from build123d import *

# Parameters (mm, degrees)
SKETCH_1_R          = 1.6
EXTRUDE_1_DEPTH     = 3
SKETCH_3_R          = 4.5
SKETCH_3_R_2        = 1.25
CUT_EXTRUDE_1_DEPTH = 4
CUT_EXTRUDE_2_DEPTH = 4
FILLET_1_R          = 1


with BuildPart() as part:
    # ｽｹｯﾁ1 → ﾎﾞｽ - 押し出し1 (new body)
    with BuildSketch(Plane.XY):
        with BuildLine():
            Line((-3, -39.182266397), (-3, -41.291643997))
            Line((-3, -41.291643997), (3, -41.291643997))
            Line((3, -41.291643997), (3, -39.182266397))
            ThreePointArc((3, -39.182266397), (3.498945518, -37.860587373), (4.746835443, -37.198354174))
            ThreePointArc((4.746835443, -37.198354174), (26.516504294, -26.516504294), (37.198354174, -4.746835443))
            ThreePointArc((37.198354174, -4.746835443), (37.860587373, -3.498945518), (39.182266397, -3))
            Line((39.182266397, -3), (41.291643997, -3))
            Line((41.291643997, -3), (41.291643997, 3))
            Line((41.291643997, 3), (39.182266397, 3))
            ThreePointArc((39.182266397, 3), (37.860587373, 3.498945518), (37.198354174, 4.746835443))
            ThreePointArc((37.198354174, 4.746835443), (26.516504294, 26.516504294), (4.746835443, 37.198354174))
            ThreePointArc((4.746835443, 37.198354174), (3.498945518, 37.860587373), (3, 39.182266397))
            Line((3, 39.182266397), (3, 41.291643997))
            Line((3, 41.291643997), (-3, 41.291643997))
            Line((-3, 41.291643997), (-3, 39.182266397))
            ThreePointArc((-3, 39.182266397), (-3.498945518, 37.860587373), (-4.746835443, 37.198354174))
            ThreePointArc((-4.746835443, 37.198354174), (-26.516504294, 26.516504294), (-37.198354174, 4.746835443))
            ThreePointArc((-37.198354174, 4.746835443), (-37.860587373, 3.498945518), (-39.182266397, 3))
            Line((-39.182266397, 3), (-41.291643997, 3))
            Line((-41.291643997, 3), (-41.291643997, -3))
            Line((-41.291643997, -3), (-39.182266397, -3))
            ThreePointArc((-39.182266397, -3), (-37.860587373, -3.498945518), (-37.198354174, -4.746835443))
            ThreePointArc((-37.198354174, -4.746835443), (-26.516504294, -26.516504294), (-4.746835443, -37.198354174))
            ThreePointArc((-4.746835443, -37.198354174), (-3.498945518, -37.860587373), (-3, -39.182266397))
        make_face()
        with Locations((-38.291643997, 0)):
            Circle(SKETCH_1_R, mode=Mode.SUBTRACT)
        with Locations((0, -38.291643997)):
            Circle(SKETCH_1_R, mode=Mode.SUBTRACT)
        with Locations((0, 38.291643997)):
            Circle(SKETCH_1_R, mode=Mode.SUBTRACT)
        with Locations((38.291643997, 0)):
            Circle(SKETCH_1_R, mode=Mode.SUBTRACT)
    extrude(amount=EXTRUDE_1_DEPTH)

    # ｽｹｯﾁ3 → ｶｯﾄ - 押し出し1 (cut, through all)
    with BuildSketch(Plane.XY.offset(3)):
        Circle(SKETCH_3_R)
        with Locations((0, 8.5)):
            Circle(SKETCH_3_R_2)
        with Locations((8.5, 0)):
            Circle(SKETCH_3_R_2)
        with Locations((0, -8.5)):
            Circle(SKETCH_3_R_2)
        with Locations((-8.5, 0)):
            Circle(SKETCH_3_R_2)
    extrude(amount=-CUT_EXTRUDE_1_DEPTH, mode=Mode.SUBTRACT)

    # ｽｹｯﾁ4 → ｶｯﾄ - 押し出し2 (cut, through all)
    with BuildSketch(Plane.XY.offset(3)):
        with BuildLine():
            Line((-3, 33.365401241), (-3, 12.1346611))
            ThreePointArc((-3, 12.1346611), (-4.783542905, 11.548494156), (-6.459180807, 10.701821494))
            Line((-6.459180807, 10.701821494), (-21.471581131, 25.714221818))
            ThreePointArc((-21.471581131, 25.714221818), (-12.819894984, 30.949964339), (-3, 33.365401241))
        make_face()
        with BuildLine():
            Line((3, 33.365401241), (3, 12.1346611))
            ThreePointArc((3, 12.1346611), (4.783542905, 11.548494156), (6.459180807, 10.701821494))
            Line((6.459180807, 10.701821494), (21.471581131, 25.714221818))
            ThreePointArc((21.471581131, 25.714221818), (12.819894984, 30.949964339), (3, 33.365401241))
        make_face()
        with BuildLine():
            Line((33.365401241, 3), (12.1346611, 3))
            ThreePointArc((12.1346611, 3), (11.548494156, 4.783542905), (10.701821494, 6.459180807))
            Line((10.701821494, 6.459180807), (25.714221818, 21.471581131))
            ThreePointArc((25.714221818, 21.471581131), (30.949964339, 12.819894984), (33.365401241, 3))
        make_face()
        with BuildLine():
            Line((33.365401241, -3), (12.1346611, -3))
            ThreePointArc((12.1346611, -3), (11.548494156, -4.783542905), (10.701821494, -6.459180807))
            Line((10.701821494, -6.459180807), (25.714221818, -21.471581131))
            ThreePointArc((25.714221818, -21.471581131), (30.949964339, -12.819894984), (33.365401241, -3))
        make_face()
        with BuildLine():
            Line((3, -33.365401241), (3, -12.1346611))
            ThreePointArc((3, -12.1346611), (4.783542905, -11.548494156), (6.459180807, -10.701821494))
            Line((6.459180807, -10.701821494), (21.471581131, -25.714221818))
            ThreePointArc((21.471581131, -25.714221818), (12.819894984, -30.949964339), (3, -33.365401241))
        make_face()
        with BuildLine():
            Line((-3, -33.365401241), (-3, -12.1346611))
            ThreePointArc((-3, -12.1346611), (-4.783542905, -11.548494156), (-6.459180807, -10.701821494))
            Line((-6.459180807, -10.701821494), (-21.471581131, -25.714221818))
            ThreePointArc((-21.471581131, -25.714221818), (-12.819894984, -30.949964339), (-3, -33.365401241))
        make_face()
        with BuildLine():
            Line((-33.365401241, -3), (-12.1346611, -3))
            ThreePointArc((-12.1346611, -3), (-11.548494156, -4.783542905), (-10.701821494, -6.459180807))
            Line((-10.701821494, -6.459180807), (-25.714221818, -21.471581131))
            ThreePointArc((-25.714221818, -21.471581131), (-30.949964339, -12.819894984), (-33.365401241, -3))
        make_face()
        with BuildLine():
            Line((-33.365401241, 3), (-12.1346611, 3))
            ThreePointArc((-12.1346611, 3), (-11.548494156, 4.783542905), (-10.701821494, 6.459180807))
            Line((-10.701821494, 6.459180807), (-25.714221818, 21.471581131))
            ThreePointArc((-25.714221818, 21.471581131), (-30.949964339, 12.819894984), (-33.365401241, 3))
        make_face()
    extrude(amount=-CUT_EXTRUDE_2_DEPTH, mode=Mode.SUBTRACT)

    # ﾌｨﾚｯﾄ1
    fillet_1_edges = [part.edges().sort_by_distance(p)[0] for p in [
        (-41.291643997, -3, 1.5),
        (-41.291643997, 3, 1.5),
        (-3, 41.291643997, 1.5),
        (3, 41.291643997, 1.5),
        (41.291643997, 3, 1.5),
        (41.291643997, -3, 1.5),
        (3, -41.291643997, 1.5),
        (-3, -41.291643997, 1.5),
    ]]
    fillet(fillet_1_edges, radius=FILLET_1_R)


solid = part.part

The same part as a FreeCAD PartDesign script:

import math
import FreeCAD as App
import Part
import Sketcher

V = App.Vector
Q = App.Units.Quantity


def edges_at(feature, points):
    """Names of the edges that pass closest to the given points."""
    edges = feature.Shape.Edges
    near = lambda p: min(range(len(edges)), key=lambda i: edges[i].distToShape(Part.Vertex(*p))[0])
    return sorted({f"Edge{near(p) + 1}" for p in points})

doc = App.newDocument("Part")
body = doc.addObject("PartDesign::Body", "Body")

# Sketch on XY plane
sketch1 = doc.addObject("Sketcher::SketchObject", "Sketch")
body.addObject(sketch1)
sketch1.AttachmentSupport = (doc.XY_Plane, [""])
sketch1.MapMode = "FlatFace"
sketch1.addGeometry([
    Part.LineSegment(V(-3, -39.182266, 0), V(-3, -41.291644, 0)),  # 0
    Part.LineSegment(V(-3, -41.291644, 0), V(3, -41.291644, 0)),  # 1
    Part.LineSegment(V(3, -41.291644, 0), V(3, -39.182266, 0)),  # 2
    Part.ArcOfCircle(Part.Circle(V(5, -39.182266, 0), V(0, 0, 1), 2), math.radians(97.27214), math.radians(180)),  # 3
    Part.ArcOfCircle(Part.Circle(V(0, 0, 0), V(0, 0, 1), 37.5), math.radians(-82.72786), math.radians(-7.27214)),  # 4
    Part.ArcOfCircle(Part.Circle(V(39.182266, -5, 0), V(0, 0, 1), 2), math.radians(90), math.radians(172.72786)),  # 5
    Part.LineSegment(V(39.182266, -3, 0), V(41.291644, -3, 0)),  # 6
    Part.LineSegment(V(41.291644, -3, 0), V(41.291644, 3, 0)),  # 7
    Part.LineSegment(V(41.291644, 3, 0), V(39.182266, 3, 0)),  # 8
    Part.ArcOfCircle(Part.Circle(V(39.182266, 5, 0), V(0, 0, 1), 2), math.radians(-172.72786), math.radians(-90)),  # 9
    Part.ArcOfCircle(Part.Circle(V(0, 0, 0), V(0, 0, 1), 37.5), math.radians(7.27214), math.radians(82.72786)),  # 10
    Part.ArcOfCircle(Part.Circle(V(5, 39.182266, 0), V(0, 0, 1), 2), math.radians(180), math.radians(262.72786)),  # 11
    Part.LineSegment(V(3, 39.182266, 0), V(3, 41.291644, 0)),  # 12
    Part.LineSegment(V(3, 41.291644, 0), V(-3, 41.291644, 0)),  # 13
    Part.LineSegment(V(-3, 41.291644, 0), V(-3, 39.182266, 0)),  # 14
    Part.ArcOfCircle(Part.Circle(V(-5, 39.182266, 0), V(0, 0, 1), 2), math.radians(-82.72786), math.radians(0)),  # 15
    Part.ArcOfCircle(Part.Circle(V(0, 0, 0), V(0, 0, 1), 37.5), math.radians(97.27214), math.radians(172.72786)),  # 16
    Part.ArcOfCircle(Part.Circle(V(-39.182266, 5, 0), V(0, 0, 1), 2), math.radians(-90), math.radians(-7.27214)),  # 17
    Part.LineSegment(V(-39.182266, 3, 0), V(-41.291644, 3, 0)),  # 18
    Part.LineSegment(V(-41.291644, 3, 0), V(-41.291644, -3, 0)),  # 19
    Part.LineSegment(V(-41.291644, -3, 0), V(-39.182266, -3, 0)),  # 20
    Part.ArcOfCircle(Part.Circle(V(-39.182266, -5, 0), V(0, 0, 1), 2), math.radians(7.27214), math.radians(90)),  # 21
    Part.ArcOfCircle(Part.Circle(V(0, 0, 0), V(0, 0, 1), 37.5), math.radians(-172.72786), math.radians(-97.27214)),  # 22
    Part.ArcOfCircle(Part.Circle(V(-5, -39.182266, 0), V(0, 0, 1), 2), math.radians(0), math.radians(82.72786)),  # 23
    Part.Circle(V(0, -38.291644, 0), V(0, 0, 1), 1.6),  # 24
    Part.Circle(V(-38.291644, 0, 0), V(0, 0, 1), 1.6),  # 25
    Part.Circle(V(38.291644, 0, 0), V(0, 0, 1), 1.6),  # 26
    Part.Circle(V(0, 38.291644, 0), V(0, 0, 1), 1.6),  # 27
], False)
sketch1.addConstraint([
    Sketcher.Constraint("Coincident", 0, 2, 1, 1),
    Sketcher.Constraint("Coincident", 1, 2, 2, 1),
    Sketcher.Constraint("Tangent", 2, 2, 3, 2),
    Sketcher.Constraint("Tangent", 3, 1, 4, 1),
    Sketcher.Constraint("Tangent", 4, 2, 5, 2),
    Sketcher.Constraint("Tangent", 5, 1, 6, 1),
    Sketcher.Constraint("Coincident", 6, 2, 7, 1),
    Sketcher.Constraint("Coincident", 7, 2, 8, 1),
    Sketcher.Constraint("Tangent", 8, 2, 9, 2),
    Sketcher.Constraint("Tangent", 9, 1, 10, 1),
    Sketcher.Constraint("Tangent", 10, 2, 11, 2),
    Sketcher.Constraint("Tangent", 11, 1, 12, 1),
    Sketcher.Constraint("Coincident", 12, 2, 13, 1),
    Sketcher.Constraint("Coincident", 13, 2, 14, 1),
    Sketcher.Constraint("Tangent", 14, 2, 15, 2),
    Sketcher.Constraint("Tangent", 15, 1, 16, 1),
    Sketcher.Constraint("Tangent", 16, 2, 17, 2),
    Sketcher.Constraint("Tangent", 17, 1, 18, 1),
    Sketcher.Constraint("Coincident", 18, 2, 19, 1),
    Sketcher.Constraint("Coincident", 19, 2, 20, 1),
    Sketcher.Constraint("Tangent", 20, 2, 21, 2),
    Sketcher.Constraint("Tangent", 21, 1, 22, 1),
    Sketcher.Constraint("Tangent", 22, 2, 23, 2),
    Sketcher.Constraint("Tangent", 23, 1, 0, 1),
    Sketcher.Constraint("Vertical", 0),
    Sketcher.Constraint("Horizontal", 1),
    Sketcher.Constraint("Vertical", 2),
    Sketcher.Constraint("Horizontal", 6),
    Sketcher.Constraint("Vertical", 7),
    Sketcher.Constraint("Horizontal", 8),
    Sketcher.Constraint("Vertical", 12),
    Sketcher.Constraint("Horizontal", 13),
    Sketcher.Constraint("Vertical", 14),
    Sketcher.Constraint("Horizontal", 18),
    Sketcher.Constraint("Vertical", 19),
    Sketcher.Constraint("Horizontal", 20),
    Sketcher.Constraint("Coincident", 4, 3, -1, 1),
    Sketcher.Constraint("Coincident", 10, 3, -1, 1),
    Sketcher.Constraint("Coincident", 16, 3, -1, 1),
    Sketcher.Constraint("Coincident", 22, 3, -1, 1),
    Sketcher.Constraint("Equal", 3, 5),
    Sketcher.Constraint("Equal", 5, 9),
    Sketcher.Constraint("Equal", 4, 10),
    Sketcher.Constraint("Equal", 9, 11),
    Sketcher.Constraint("Equal", 11, 15),
    Sketcher.Constraint("Equal", 10, 16),
    Sketcher.Constraint("Equal", 15, 17),
    Sketcher.Constraint("Equal", 17, 21),
    Sketcher.Constraint("Equal", 16, 22),
    Sketcher.Constraint("Equal", 21, 23),
    Sketcher.Constraint("Equal", 24, 25),
    Sketcher.Constraint("Equal", 25, 26),
    Sketcher.Constraint("Equal", 26, 27),
    Sketcher.Constraint("Symmetric", 25, 3, 26, 3, -1, 1),
    Sketcher.Constraint("Symmetric", 24, 3, 27, 3, -1, 1),
    Sketcher.Constraint("Symmetric", 0, 2, 12, 2, -1, 1),
    Sketcher.Constraint("Symmetric", 6, 2, 18, 2, -1, 1),
    Sketcher.Constraint("PointOnObject", 24, 3, -2),
    Sketcher.Constraint("PointOnObject", 25, 3, -1),
    Sketcher.Constraint("Horizontal", 11, 3, 15, 3),
    Sketcher.Constraint("Horizontal", 9, 3, 17, 3),
    Sketcher.Constraint("Horizontal", 5, 3, 21, 3),
    Sketcher.Constraint("Horizontal", 3, 3, 23, 3),
    Sketcher.Constraint("Equal", 20, 0),
    Sketcher.Constraint("Equal", 13, 7),
    Sketcher.Constraint("Radius", 3, Q("2 mm")),
    Sketcher.Constraint("Diameter", 24, Q("3.2 mm")),
    Sketcher.Constraint("Radius", 4, Q("37.5 mm")),
    Sketcher.Constraint("DistanceX", 1, 1, 1, 2, Q("6 mm")),
    Sketcher.Constraint("DistanceY", 0, 2, 24, 3, Q("3 mm")),
    Sketcher.Constraint("DistanceX", 26, 3, 6, 2, Q("3 mm")),
    Sketcher.Constraint("DistanceX", 6, 1, 6, 2, Q("2.109378 mm")),
])
pad1 = doc.addObject("PartDesign::Pad", "Pad")
body.addObject(pad1)
pad1.Profile = sketch1
pad1.Length = 3

# Sketch on XY plane
sketch2 = doc.addObject("Sketcher::SketchObject", "Sketch001")
body.addObject(sketch2)
sketch2.AttachmentSupport = (doc.XY_Plane, [""])
sketch2.MapMode = "FlatFace"
sketch2.AttachmentOffset = App.Placement(V(0, 0, 3), App.Rotation())
sketch2.addGeometry([
    Part.Circle(V(0, 0, 0), V(0, 0, 1), 4.5),  # 0
    Part.Circle(V(0, 8.5, 0), V(0, 0, 1), 1.25),  # 1
    Part.Circle(V(8.5, 0, 0), V(0, 0, 1), 1.25),  # 2
    Part.Circle(V(0, -8.5, 0), V(0, 0, 1), 1.25),  # 3
    Part.Circle(V(-8.5, 0, 0), V(0, 0, 1), 1.25),  # 4
], False)
sketch2.addConstraint([
    Sketcher.Constraint("Coincident", 0, 3, -1, 1),
    Sketcher.Constraint("Equal", 1, 2),
    Sketcher.Constraint("Equal", 2, 3),
    Sketcher.Constraint("Equal", 3, 4),
    Sketcher.Constraint("Symmetric", 1, 3, 3, 3, -1, 1),
    Sketcher.Constraint("Symmetric", 2, 3, 4, 3, -1, 1),
    Sketcher.Constraint("PointOnObject", 1, 3, -2),
    Sketcher.Constraint("PointOnObject", 2, 3, -1),
    Sketcher.Constraint("Diameter", 0, Q("9 mm")),
    Sketcher.Constraint("Diameter", 1, Q("2.5 mm")),
    Sketcher.Constraint("DistanceY", 3, 3, 1, 3, Q("17 mm")),
    Sketcher.Constraint("DistanceX", 4, 3, 2, 3, Q("17 mm")),
])
pocket1 = doc.addObject("PartDesign::Pocket", "Pocket")
body.addObject(pocket1)
pocket1.Profile = sketch2
pocket1.Type = "ThroughAll"

# Sketch on XY plane
sketch3 = doc.addObject("Sketcher::SketchObject", "Sketch002")
body.addObject(sketch3)
sketch3.AttachmentSupport = (doc.XY_Plane, [""])
sketch3.MapMode = "FlatFace"
sketch3.AttachmentOffset = App.Placement(V(0, 0, 3), App.Rotation())
sketch3.addGeometry([
    Part.LineSegment(V(-3, 12.134661, 0), V(-3, 33.365401, 0)),  # 0
    Part.ArcOfCircle(Part.Circle(V(0, 0, 0), V(0, 0, 1), 33.5), math.radians(95.137848), math.radians(129.862152)),  # 1
    Part.LineSegment(V(-21.471581, 25.714222, 0), V(-6.459181, 10.701821, 0)),  # 2
    Part.ArcOfCircle(Part.Circle(V(0, 0, 0), V(0, 0, 1), 12.5), math.radians(103.88654), math.radians(121.11346)),  # 3
    Part.LineSegment(V(3, 33.365401, 0), V(3, 12.134661, 0)),  # 4
    Part.ArcOfCircle(Part.Circle(V(0, 0, 0), V(0, 0, 1), 12.5), math.radians(58.88654), math.radians(76.11346)),  # 5
    Part.LineSegment(V(6.459181, 10.701821, 0), V(21.471581, 25.714222, 0)),  # 6
    Part.ArcOfCircle(Part.Circle(V(0, 0, 0), V(0, 0, 1), 33.5), math.radians(50.137848), math.radians(84.862152)),  # 7
    Part.LineSegment(V(12.134661, 3, 0), V(33.365401, 3, 0)),  # 8
    Part.ArcOfCircle(Part.Circle(V(0, 0, 0), V(0, 0, 1), 33.5), math.radians(5.137848), math.radians(39.862152)),  # 9
    Part.LineSegment(V(25.714222, 21.471581, 0), V(10.701821, 6.459181, 0)),  # 10
    Part.ArcOfCircle(Part.Circle(V(0, 0, 0), V(0, 0, 1), 12.5), math.radians(13.88654), math.radians(31.11346)),  # 11
    Part.LineSegment(V(33.365401, -3, 0), V(12.134661, -3, 0)),  # 12
    Part.ArcOfCircle(Part.Circle(V(0, 0, 0), V(0, 0, 1), 12.5), math.radians(-31.11346), math.radians(-13.88654)),  # 13
    Part.LineSegment(V(10.701821, -6.459181, 0), V(25.714222, -21.471581, 0)),  # 14
    Part.ArcOfCircle(Part.Circle(V(0, 0, 0), V(0, 0, 1), 33.5), math.radians(-39.862152), math.radians(-5.137848)),  # 15
    Part.LineSegment(V(3, -12.134661, 0), V(3, -33.365401, 0)),  # 16
    Part.ArcOfCircle(Part.Circle(V(0, 0, 0), V(0, 0, 1), 33.5), math.radians(-84.862152), math.radians(-50.137848)),  # 17
    Part.LineSegment(V(21.471581, -25.714222, 0), V(6.459181, -10.701821, 0)),  # 18
    Part.ArcOfCircle(Part.Circle(V(0, 0, 0), V(0, 0, 1), 12.5), math.radians(-76.11346), math.radians(-58.88654)),  # 19
    Part.LineSegment(V(-3, -33.365401, 0), V(-3, -12.134661, 0)),  # 20
    Part.ArcOfCircle(Part.Circle(V(0, 0, 0), V(0, 0, 1), 12.5), math.radians(-121.11346), math.radians(-103.88654)),  # 21
    Part.LineSegment(V(-6.459181, -10.701821, 0), V(-21.471581, -25.714222, 0)),  # 22
    Part.ArcOfCircle(Part.Circle(V(0, 0, 0), V(0, 0, 1), 33.5), math.radians(-129.862152), math.radians(-95.137848)),  # 23
    Part.LineSegment(V(-12.134661, -3, 0), V(-33.365401, -3, 0)),  # 24
    Part.ArcOfCircle(Part.Circle(V(0, 0, 0), V(0, 0, 1), 33.5), math.radians(-174.862152), math.radians(-140.137848)),  # 25
    Part.LineSegment(V(-25.714222, -21.471581, 0), V(-10.701821, -6.459181, 0)),  # 26
    Part.ArcOfCircle(Part.Circle(V(0, 0, 0), V(0, 0, 1), 12.5), math.radians(-166.11346), math.radians(-148.88654)),  # 27
    Part.LineSegment(V(-33.365401, 3, 0), V(-12.134661, 3, 0)),  # 28
    Part.ArcOfCircle(Part.Circle(V(0, 0, 0), V(0, 0, 1), 12.5), math.radians(148.88654), math.radians(166.11346)),  # 29
    Part.LineSegment(V(-10.701821, 6.459181, 0), V(-25.714222, 21.471581, 0)),  # 30
    Part.ArcOfCircle(Part.Circle(V(0, 0, 0), V(0, 0, 1), 33.5), math.radians(140.137848), math.radians(174.862152)),  # 31
], False)
sketch3.addConstraint([
    Sketcher.Constraint("Coincident", 0, 2, 1, 1),
    Sketcher.Constraint("Coincident", 1, 2, 2, 1),
    Sketcher.Constraint("Coincident", 2, 2, 3, 2),
    Sketcher.Constraint("Coincident", 3, 1, 0, 1),
    Sketcher.Constraint("Coincident", 4, 2, 5, 2),
    Sketcher.Constraint("Coincident", 5, 1, 6, 1),
    Sketcher.Constraint("Coincident", 6, 2, 7, 1),
    Sketcher.Constraint("Coincident", 7, 2, 4, 1),
    Sketcher.Constraint("Coincident", 8, 2, 9, 1),
    Sketcher.Constraint("Coincident", 9, 2, 10, 1),
    Sketcher.Constraint("Coincident", 10, 2, 11, 2),
    Sketcher.Constraint("Coincident", 11, 1, 8, 1),
    Sketcher.Constraint("Coincident", 12, 2, 13, 2),
    Sketcher.Constraint("Coincident", 13, 1, 14, 1),
    Sketcher.Constraint("Coincident", 14, 2, 15, 1),
    Sketcher.Constraint("Coincident", 15, 2, 12, 1),
    Sketcher.Constraint("Coincident", 16, 2, 17, 1),
    Sketcher.Constraint("Coincident", 17, 2, 18, 1),
    Sketcher.Constraint("Coincident", 18, 2, 19, 2),
    Sketcher.Constraint("Coincident", 19, 1, 16, 1),
    Sketcher.Constraint("Coincident", 20, 2, 21, 2),
    Sketcher.Constraint("Coincident", 21, 1, 22, 1),
    Sketcher.Constraint("Coincident", 22, 2, 23, 1),
    Sketcher.Constraint("Coincident", 23, 2, 20, 1),
    Sketcher.Constraint("Coincident", 24, 2, 25, 1),
    Sketcher.Constraint("Coincident", 25, 2, 26, 1),
    Sketcher.Constraint("Coincident", 26, 2, 27, 2),
    Sketcher.Constraint("Coincident", 27, 1, 24, 1),
    Sketcher.Constraint("Coincident", 28, 2, 29, 2),
    Sketcher.Constraint("Coincident", 29, 1, 30, 1),
    Sketcher.Constraint("Coincident", 30, 2, 31, 1),
    Sketcher.Constraint("Coincident", 31, 2, 28, 1),
    Sketcher.Constraint("Vertical", 0),
    Sketcher.Constraint("Vertical", 4),
    Sketcher.Constraint("Horizontal", 8),
    Sketcher.Constraint("Horizontal", 12),
    Sketcher.Constraint("Vertical", 16),
    Sketcher.Constraint("Vertical", 20),
    Sketcher.Constraint("Horizontal", 24),
    Sketcher.Constraint("Horizontal", 28),
    Sketcher.Constraint("Coincident", 1, 3, -1, 1),
    Sketcher.Constraint("Coincident", 3, 3, -1, 1),
    Sketcher.Constraint("Coincident", 5, 3, -1, 1),
    Sketcher.Constraint("Coincident", 7, 3, -1, 1),
    Sketcher.Constraint("Coincident", 9, 3, -1, 1),
    Sketcher.Constraint("Coincident", 11, 3, -1, 1),
    Sketcher.Constraint("Coincident", 13, 3, -1, 1),
    Sketcher.Constraint("Coincident", 15, 3, -1, 1),
    Sketcher.Constraint("Coincident", 17, 3, -1, 1),
    Sketcher.Constraint("Coincident", 19, 3, -1, 1),
    Sketcher.Constraint("Coincident", 21, 3, -1, 1),
    Sketcher.Constraint("Coincident", 23, 3, -1, 1),
    Sketcher.Constraint("Coincident", 25, 3, -1, 1),
    Sketcher.Constraint("Coincident", 27, 3, -1, 1),
    Sketcher.Constraint("Coincident", 29, 3, -1, 1),
    Sketcher.Constraint("Coincident", 31, 3, -1, 1),
    Sketcher.Constraint("Equal", 3, 5),
    Sketcher.Constraint("Equal", 1, 7),
    Sketcher.Constraint("Equal", 7, 9),
    Sketcher.Constraint("Equal", 5, 11),
    Sketcher.Constraint("Equal", 11, 13),
    Sketcher.Constraint("Equal", 9, 15),
    Sketcher.Constraint("Equal", 15, 17),
    Sketcher.Constraint("Equal", 13, 19),
    Sketcher.Constraint("Equal", 19, 21),
    Sketcher.Constraint("Equal", 17, 23),
    Sketcher.Constraint("Equal", 23, 25),
    Sketcher.Constraint("Equal", 21, 27),
    Sketcher.Constraint("Equal", 27, 29),
    Sketcher.Constraint("Equal", 25, 31),
    Sketcher.Constraint("Perpendicular", 2, 6),
    Sketcher.Constraint("Parallel", 6, 10),
    Sketcher.Constraint("Perpendicular", 10, 14),
    Sketcher.Constraint("Parallel", 14, 18),
    Sketcher.Constraint("Perpendicular", 18, 22),
    Sketcher.Constraint("Parallel", 22, 26),
    Sketcher.Constraint("Perpendicular", 26, 30),
    Sketcher.Constraint("Horizontal", 3, 1, 4, 2),
    Sketcher.Constraint("Horizontal", 2, 2, 5, 1),
    Sketcher.Constraint("Horizontal", 1, 2, 6, 2),
    Sketcher.Constraint("Horizontal", 19, 1, 20, 2),
    Sketcher.Constraint("Horizontal", 18, 2, 21, 1),
    Sketcher.Constraint("Horizontal", 15, 2, 24, 2),
    Sketcher.Constraint("Horizontal", 14, 2, 25, 2),
    Sketcher.Constraint("Horizontal", 11, 1, 28, 2),
    Sketcher.Constraint("Horizontal", 10, 2, 29, 1),
    Sketcher.Constraint("Vertical", 11, 1, 12, 2),
    Sketcher.Constraint("Vertical", 10, 2, 13, 1),
    Sketcher.Constraint("Vertical", 7, 2, 16, 2),
    Sketcher.Constraint("Vertical", 6, 2, 17, 2),
    Sketcher.Constraint("Equal", 28, 0),
    Sketcher.Constraint("Equal", 6, 10),
    Sketcher.Constraint("Radius", 1, Q("33.5 mm")),
    Sketcher.Constraint("Radius", 3, Q("12.5 mm")),
    Sketcher.Constraint("DistanceX", 0, 2, -1, 1, Q("3 mm")),
    Sketcher.Constraint("DistanceX", 5, 1, 6, 2, Q("15.0124 mm")),
])
pocket2 = doc.addObject("PartDesign::Pocket", "Pocket001")
body.addObject(pocket2)
pocket2.Profile = sketch3
pocket2.Type = "ThroughAll"
doc.recompute()

fillet = doc.addObject("PartDesign::Fillet", "Fillet")
body.addObject(fillet)
fillet.Base = (pocket2, edges_at(pocket2, [
    (-41.292, -3, 1.5),
    (-41.292, 3, 1.5),
    (-3, 41.292, 1.5),
    (3, 41.292, 1.5),
    (41.292, 3, 1.5),
    (41.292, -3, 1.5),
    (3, -41.292, 1.5),
    (-3, -41.292, 1.5),
]))
fillet.Radius = 1

doc.recompute()
